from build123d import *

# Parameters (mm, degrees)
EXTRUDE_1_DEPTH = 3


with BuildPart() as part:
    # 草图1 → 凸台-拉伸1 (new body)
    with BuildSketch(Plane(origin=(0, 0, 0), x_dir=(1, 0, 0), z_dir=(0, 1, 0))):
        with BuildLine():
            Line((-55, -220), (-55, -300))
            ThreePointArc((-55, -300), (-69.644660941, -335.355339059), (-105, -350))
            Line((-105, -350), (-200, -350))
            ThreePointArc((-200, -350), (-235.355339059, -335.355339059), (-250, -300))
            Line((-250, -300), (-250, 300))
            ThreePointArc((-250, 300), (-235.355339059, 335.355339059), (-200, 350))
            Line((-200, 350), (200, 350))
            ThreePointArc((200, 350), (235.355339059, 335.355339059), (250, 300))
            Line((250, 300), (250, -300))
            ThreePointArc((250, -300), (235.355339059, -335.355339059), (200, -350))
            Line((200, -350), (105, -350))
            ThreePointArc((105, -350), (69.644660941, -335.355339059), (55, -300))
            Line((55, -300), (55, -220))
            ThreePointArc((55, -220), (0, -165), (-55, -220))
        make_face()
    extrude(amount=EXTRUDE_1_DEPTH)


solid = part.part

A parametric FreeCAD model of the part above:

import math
import FreeCAD as App
import Part
import Sketcher
Q = App.Units.Quantity

doc = App.newDocument("Part")
body = doc.addObject("PartDesign::Body", "Body")

# Sketch on XZ plane
sketch1 = body.newObject("Sketcher::SketchObject", "Sketch")
sketch1.AttachmentSupport = (doc.getObject("XZ_Plane"), [""])
sketch1.MapMode = "FlatFace"
sketch1.addGeometry([
    Part.LineSegment(App.Vector(-55, 300, 0), App.Vector(-55, 220, 0)),  # 0
    Part.ArcOfCircle(Part.Circle(App.Vector(0, 220, 0), App.Vector(0, 0, 1), 55), math.radians(180), math.radians(360)),  # 1
    Part.LineSegment(App.Vector(55, 220, 0), App.Vector(55, 300, 0)),  # 2
    Part.ArcOfCircle(Part.Circle(App.Vector(105, 300, 0), App.Vector(0, 0, 1), 50), math.radians(90), math.radians(180)),  # 3
    Part.LineSegment(App.Vector(105, 350, 0), App.Vector(200, 350, 0)),  # 4
    Part.ArcOfCircle(Part.Circle(App.Vector(200, 300, 0), App.Vector(0, 0, 1), 50), math.radians(0), math.radians(90)),  # 5
    Part.LineSegment(App.Vector(250, 300, 0), App.Vector(250, -300, 0)),  # 6
    Part.ArcOfCircle(Part.Circle(App.Vector(200, -300, 0), App.Vector(0, 0, 1), 50), math.radians(-90), math.radians(0)),  # 7
    Part.LineSegment(App.Vector(200, -350, 0), App.Vector(-200, -350, 0)),  # 8
    Part.ArcOfCircle(Part.Circle(App.Vector(-200, -300, 0), App.Vector(0, 0, 1), 50), math.radians(-180), math.radians(-90)),  # 9
    Part.LineSegment(App.Vector(-250, -300, 0), App.Vector(-250, 300, 0)),  # 10
    Part.ArcOfCircle(Part.Circle(App.Vector(-200, 300, 0), App.Vector(0, 0, 1), 50), math.radians(90), math.radians(180)),  # 11
    Part.LineSegment(App.Vector(-200, 350, 0), App.Vector(-105, 350, 0)),  # 12
    Part.ArcOfCircle(Part.Circle(App.Vector(-105, 300, 0), App.Vector(0, 0, 1), 50), math.radians(0), math.radians(90)),  # 13
], False)
sketch1.addConstraint([
    Sketcher.Constraint("Tangent", 0, 2, 1, 1),
    Sketcher.Constraint("Tangent", 1, 2, 2, 1),
    Sketcher.Constraint("Tangent", 2, 2, 3, 2),
    Sketcher.Constraint("Tangent", 3, 1, 4, 1),
    Sketcher.Constraint("Tangent", 4, 2, 5, 2),
    Sketcher.Constraint("Tangent", 5, 1, 6, 1),
    Sketcher.Constraint("Tangent", 6, 2, 7, 2),
    Sketcher.Constraint("Tangent", 7, 1, 8, 1),
    Sketcher.Constraint("Tangent", 8, 2, 9, 2),
    Sketcher.Constraint("Tangent", 9, 1, 10, 1),
    Sketcher.Constraint("Tangent", 10, 2, 11, 2),
    Sketcher.Constraint("Tangent", 11, 1, 12, 1),
    Sketcher.Constraint("Tangent", 12, 2, 13, 2),
    Sketcher.Constraint("Tangent", 13, 1, 0, 1),
    Sketcher.Constraint("Vertical", 0),
    Sketcher.Constraint("Vertical", 2),
    Sketcher.Constraint("Horizontal", 4),
    Sketcher.Constraint("Vertical", 6),
    Sketcher.Constraint("Horizontal", 8),
    Sketcher.Constraint("Vertical", 10),
    Sketcher.Constraint("Horizontal", 12),
    Sketcher.Constraint("Equal", 3, 5),
    Sketcher.Constraint("Equal", 5, 7),
    Sketcher.Constraint("Equal", 7, 9),
    Sketcher.Constraint("Equal", 9, 11),
    Sketcher.Constraint("Equal", 11, 13),
    Sketcher.Constraint("Symmetric", 5, 3, 9, 3, -1, 1),
    Sketcher.Constraint("Symmetric", 3, 3, 13, 3, -2),
    Sketcher.Constraint("Radius", 1, Q("55 mm")),
    Sketcher.Constraint("Radius", 3, Q("50 mm")),
    Sketcher.Constraint("DistanceX", 4, 1, 4, 2, Q("95 mm")),
    Sketcher.Constraint("DistanceY", 0, 2, 0, 1, Q("80 mm")),
    Sketcher.Constraint("DistanceY", 6, 2, 6, 1, Q("600 mm")),
])
pad1 = body.newObject("PartDesign::Pad", "Pad")
pad1.Profile = sketch1
pad1.Length = 3
pad1.Reversed = True

doc.recompute()
